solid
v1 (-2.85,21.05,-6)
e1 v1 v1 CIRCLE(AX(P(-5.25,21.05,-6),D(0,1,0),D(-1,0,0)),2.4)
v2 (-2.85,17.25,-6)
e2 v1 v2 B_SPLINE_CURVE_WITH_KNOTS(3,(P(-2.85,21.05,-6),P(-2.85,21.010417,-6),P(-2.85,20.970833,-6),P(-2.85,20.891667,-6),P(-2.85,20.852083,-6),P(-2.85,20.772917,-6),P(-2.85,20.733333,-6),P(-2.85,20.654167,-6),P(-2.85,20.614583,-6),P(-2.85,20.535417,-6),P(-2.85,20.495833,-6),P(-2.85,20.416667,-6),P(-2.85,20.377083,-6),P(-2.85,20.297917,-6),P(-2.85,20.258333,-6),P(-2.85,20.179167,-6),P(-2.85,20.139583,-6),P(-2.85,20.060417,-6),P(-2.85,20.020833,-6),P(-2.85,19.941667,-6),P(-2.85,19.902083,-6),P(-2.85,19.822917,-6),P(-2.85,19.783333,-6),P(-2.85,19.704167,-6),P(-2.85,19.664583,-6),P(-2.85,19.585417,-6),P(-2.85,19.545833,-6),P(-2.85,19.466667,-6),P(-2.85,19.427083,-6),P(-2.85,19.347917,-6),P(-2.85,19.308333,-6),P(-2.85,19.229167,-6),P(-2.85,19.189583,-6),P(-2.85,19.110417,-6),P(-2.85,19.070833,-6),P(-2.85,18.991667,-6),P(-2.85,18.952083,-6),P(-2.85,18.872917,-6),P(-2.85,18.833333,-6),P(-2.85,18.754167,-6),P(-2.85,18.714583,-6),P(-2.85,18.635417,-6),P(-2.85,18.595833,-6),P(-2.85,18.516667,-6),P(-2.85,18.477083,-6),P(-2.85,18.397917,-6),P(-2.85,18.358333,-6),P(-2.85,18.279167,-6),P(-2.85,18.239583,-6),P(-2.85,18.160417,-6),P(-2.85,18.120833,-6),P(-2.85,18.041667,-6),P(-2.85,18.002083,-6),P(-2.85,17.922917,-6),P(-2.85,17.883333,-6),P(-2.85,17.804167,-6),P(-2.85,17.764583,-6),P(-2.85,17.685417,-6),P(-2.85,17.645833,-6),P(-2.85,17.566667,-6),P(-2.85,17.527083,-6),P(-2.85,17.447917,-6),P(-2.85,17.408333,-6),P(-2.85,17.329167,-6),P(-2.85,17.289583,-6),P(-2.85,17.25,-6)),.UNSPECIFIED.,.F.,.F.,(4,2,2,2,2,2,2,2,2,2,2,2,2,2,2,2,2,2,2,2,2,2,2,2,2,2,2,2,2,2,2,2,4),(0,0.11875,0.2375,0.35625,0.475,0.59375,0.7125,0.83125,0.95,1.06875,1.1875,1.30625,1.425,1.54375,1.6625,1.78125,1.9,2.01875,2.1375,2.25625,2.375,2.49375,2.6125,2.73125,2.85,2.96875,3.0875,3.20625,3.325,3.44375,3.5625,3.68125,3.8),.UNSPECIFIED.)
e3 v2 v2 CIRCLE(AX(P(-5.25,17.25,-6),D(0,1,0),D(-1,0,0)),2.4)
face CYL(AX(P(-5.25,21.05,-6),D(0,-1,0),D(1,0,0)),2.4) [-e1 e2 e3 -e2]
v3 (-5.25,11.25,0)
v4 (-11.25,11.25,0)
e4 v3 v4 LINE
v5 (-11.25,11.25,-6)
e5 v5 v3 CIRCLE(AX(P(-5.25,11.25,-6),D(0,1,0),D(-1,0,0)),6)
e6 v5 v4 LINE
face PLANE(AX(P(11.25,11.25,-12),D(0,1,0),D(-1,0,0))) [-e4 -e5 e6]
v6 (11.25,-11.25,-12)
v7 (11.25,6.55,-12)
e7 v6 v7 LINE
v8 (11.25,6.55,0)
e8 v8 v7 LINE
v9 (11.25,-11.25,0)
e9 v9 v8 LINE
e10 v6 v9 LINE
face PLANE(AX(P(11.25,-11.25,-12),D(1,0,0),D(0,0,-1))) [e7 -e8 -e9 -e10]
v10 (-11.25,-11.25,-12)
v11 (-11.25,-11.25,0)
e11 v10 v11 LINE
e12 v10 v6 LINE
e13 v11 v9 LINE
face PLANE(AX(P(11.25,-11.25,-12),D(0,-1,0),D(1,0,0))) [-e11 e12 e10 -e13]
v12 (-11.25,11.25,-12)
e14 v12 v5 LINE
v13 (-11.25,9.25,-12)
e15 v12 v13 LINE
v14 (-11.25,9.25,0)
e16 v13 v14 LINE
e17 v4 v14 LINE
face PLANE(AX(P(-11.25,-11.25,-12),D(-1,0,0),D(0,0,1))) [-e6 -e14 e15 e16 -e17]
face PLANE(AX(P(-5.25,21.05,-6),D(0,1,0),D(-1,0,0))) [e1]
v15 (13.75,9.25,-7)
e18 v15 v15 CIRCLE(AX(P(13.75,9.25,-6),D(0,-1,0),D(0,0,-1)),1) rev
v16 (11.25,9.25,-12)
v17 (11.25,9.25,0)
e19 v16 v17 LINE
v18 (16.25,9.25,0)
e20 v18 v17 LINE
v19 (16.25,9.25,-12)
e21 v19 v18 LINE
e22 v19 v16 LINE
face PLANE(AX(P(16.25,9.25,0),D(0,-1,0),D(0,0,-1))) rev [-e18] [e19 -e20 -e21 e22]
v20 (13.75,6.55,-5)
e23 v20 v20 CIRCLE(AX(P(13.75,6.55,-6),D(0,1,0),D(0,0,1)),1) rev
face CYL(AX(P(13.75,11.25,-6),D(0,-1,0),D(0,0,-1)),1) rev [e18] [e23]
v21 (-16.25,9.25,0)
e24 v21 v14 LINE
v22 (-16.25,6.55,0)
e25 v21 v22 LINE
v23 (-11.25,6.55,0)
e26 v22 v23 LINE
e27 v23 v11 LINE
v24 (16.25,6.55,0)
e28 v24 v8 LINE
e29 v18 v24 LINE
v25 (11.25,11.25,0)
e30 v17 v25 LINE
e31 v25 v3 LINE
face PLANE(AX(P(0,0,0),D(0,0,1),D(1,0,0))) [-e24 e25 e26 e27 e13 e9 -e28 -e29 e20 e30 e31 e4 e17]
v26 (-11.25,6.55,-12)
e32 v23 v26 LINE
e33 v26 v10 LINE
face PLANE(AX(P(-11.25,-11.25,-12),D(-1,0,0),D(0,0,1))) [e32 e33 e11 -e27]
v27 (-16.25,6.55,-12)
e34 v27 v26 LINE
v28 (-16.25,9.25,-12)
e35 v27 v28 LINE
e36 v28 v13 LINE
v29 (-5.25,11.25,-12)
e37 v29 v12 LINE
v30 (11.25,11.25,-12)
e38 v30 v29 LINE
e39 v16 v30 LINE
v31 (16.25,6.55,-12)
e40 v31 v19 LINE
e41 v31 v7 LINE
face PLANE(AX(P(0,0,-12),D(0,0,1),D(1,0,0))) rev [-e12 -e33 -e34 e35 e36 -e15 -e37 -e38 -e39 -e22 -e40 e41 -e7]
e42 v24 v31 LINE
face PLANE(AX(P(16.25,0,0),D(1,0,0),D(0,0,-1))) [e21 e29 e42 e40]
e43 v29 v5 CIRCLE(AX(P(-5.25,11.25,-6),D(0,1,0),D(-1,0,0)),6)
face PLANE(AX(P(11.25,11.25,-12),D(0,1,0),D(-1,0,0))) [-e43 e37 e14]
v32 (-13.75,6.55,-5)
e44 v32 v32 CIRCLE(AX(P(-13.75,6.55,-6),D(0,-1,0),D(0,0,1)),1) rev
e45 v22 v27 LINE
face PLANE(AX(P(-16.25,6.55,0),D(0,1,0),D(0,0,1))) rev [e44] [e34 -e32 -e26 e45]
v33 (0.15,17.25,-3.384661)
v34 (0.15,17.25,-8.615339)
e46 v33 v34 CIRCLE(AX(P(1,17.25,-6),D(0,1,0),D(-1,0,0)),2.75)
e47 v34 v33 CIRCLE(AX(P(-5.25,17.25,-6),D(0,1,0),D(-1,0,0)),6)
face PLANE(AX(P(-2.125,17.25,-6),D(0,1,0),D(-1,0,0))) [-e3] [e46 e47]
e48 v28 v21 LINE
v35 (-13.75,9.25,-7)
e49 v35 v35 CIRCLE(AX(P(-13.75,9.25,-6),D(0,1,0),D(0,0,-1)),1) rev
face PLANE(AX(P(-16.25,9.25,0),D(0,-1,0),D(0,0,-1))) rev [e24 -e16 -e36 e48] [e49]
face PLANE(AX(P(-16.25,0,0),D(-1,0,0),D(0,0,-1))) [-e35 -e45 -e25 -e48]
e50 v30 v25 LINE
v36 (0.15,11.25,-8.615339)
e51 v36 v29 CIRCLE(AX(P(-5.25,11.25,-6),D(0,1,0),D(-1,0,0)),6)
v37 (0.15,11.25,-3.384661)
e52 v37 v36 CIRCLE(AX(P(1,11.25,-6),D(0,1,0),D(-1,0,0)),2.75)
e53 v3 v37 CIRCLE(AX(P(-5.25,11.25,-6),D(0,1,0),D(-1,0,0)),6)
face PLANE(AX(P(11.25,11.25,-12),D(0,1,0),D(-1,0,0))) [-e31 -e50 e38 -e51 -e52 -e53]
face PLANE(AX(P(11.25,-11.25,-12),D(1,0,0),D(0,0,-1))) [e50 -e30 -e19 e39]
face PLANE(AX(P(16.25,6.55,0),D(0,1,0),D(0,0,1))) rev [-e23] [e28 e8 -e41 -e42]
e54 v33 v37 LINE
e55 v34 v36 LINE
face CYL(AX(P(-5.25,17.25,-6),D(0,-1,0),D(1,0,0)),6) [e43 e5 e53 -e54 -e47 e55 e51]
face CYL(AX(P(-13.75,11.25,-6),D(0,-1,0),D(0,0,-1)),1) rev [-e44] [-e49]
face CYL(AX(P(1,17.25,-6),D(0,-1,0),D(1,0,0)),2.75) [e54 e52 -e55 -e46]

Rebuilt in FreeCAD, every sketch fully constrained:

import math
import FreeCAD as App
import Part
import Sketcher
Q = App.Units.Quantity


def add_polygon(sketch, points):
    """Adds a closed chain of lines whose ends are joined by coincident constraints."""
    first, n = sketch.GeometryCount, len(points)
    for a, b in zip(points, points[1:] + points[:1]):
        sketch.addGeometry(Part.LineSegment(App.Vector(*a, 0), App.Vector(*b, 0)), False)
    for i in range(n):
        sketch.addConstraint(Sketcher.Constraint("Coincident", first + i, 2, first + (i + 1) % n, 1))

doc = App.newDocument("Part")
params = doc.addObject("Spreadsheet::Sheet", "Params")
for row, (alias, value) in enumerate([
    ("sketch1_width", "22.5 mm"),
    ("pad1_length", "12 mm"),
    ("sketch2_height", "12 mm"),
    ("sketch2_width", "2.7 mm"),
    ("pad2_length", "5 mm"),
    ("sketch3_diameter", "2 mm"),
    ("sketch4_diameter", "2 mm"),
    ("pocket2_length", "29.780419 mm"),
    ("sketch5_radius", "6 mm"),
    ("sketch5_radius2", "2.75 mm"),
    ("sketch5_width", "5.4 mm"),
    ("pad3_length", "6 mm"),
    ("sketch6_diameter", "4.8 mm"),
    ("pad4_length", "3.8 mm"),
], start=1):
    params.set(f"A{row}", alias)
    params.set(f"B{row}", "=" + value)
    params.setAlias(f"B{row}", alias)

body = doc.addObject("PartDesign::Body", "Body")

# Sketch on XY plane
sketch1 = body.newObject("Sketcher::SketchObject", "Sketch")
sketch1.AttachmentSupport = (doc.getObject("XY_Plane"), [""])
sketch1.MapMode = "FlatFace"
add_polygon(sketch1, [(-11, 11), (-11, -11), (11, -11), (11, 11)])  # lines 0-3
sketch1.addConstraint([
    Sketcher.Constraint("Vertical", 0),
    Sketcher.Constraint("Horizontal", 1),
    Sketcher.Constraint("Vertical", 2),
    Sketcher.Constraint("Horizontal", 3),
    Sketcher.Constraint("Symmetric", 0, 2, 2, 2, -1, 1),
    Sketcher.Constraint("Equal", 3, 0),
    Sketcher.Constraint("DistanceX", 1, 1, 1, 2, Q("22.5 mm")),
])
sketch1.setExpression("Constraints[10]", "Params.sketch1_width")
pad1 = body.newObject("PartDesign::Pad", "Pad")
pad1.Profile = sketch1
pad1.setExpression("Length", "Params.pad1_length")
pad1.Reversed = True

# Sketch on YZ plane
sketch2 = body.newObject("Sketcher::SketchObject", "Sketch001")
sketch2.AttachmentSupport = (doc.getObject("YZ_Plane"), [""])
sketch2.MapMode = "FlatFace"
sketch2.AttachmentOffset = App.Placement(App.Vector(0, 0, 11.25), App.Rotation())
add_polygon(sketch2, [(9.2, 0), (6.5, 0), (6.5, -12), (9.2, -12)])  # lines 0-3
sketch2.addConstraint([
    Sketcher.Constraint("Horizontal", 0),
    Sketcher.Constraint("Vertical", 1),
    Sketcher.Constraint("Horizontal", 2),
    Sketcher.Constraint("Vertical", 3),
    Sketcher.Constraint("PointOnObject", 0, 2, -1),
    Sketcher.Constraint("DistanceY", 1, 2, 1, 1, Q("12 mm")),
    Sketcher.Constraint("DistanceX", 0, 2, 0, 1, Q("2.7 mm")),
    Sketcher.Constraint("DistanceX", -1, 1, 0, 2, Q("6.55 mm")),
])
sketch2.setExpression("Constraints[9]", "Params.sketch2_height")
sketch2.setExpression("Constraints[10]", "Params.sketch2_width")
pad2 = body.newObject("PartDesign::Pad", "Pad001")
pad2.Profile = sketch2
pad2.setExpression("Length", "Params.pad2_length")

# Sketch on XZ plane
sketch3 = body.newObject("Sketcher::SketchObject", "Sketch002")
sketch3.AttachmentSupport = (doc.getObject("XZ_Plane"), [""])
sketch3.MapMode = "FlatFace"
sketch3.AttachmentOffset = App.Placement(App.Vector(0, 0, -9.25), App.Rotation())
sketch3.addGeometry(Part.Circle(App.Vector(13.8, -6, 0), App.Vector(0, 0, 1), 1), False)
sketch3.addConstraint([
    Sketcher.Constraint("Diameter", 0, Q("2 mm")),
    Sketcher.Constraint("DistanceY", 0, 3, -1, 1, Q("6 mm")),
    Sketcher.Constraint("DistanceX", -1, 1, 0, 3, Q("13.75 mm")),
])
sketch3.setExpression("Constraints[0]", "Params.sketch3_diameter")
pocket1 = body.newObject("PartDesign::Pocket", "Pocket")
pocket1.Profile = sketch3
pocket1.Type = "UpToFirst"
pocket1.Reversed = True

# Sketch on XZ plane
sketch4 = body.newObject("Sketcher::SketchObject", "Sketch003")
sketch4.AttachmentSupport = (doc.getObject("XZ_Plane"), [""])
sketch4.MapMode = "FlatFace"
sketch4.AttachmentOffset = App.Placement(App.Vector(0, 0, -9.25), App.Rotation())
sketch4.addGeometry(Part.Circle(App.Vector(13.8, -6, 0), App.Vector(0, 0, 1), 1), False)
sketch4.addConstraint([
    Sketcher.Constraint("Diameter", 0, Q("2 mm")),
    Sketcher.Constraint("DistanceY", 0, 3, -1, 1, Q("6 mm")),
    Sketcher.Constraint("DistanceX", -1, 1, 0, 3, Q("13.75 mm")),
])
sketch4.setExpression("Constraints[0]", "Params.sketch4_diameter")
pocket2 = body.newObject("PartDesign::Pocket", "Pocket001")
pocket2.Profile = sketch4
pocket2.setExpression("Length", "Params.pocket2_length")
body2 = doc.addObject("PartDesign::Body", "Body001")
doc.recompute()

body2.BaseFeature = body
doc.recompute()

mirroring = doc.addObject("Part::Mirroring", "Mirroring")
mirroring.Source = body
mirroring.Base = App.Vector(0, 0, 0)
mirroring.Normal = App.Vector(1, 0, 0)
body3 = doc.addObject("PartDesign::Body", "Body002")
body3.BaseFeature = mirroring
boolean = body2.newObject("PartDesign::Boolean", "Boolean")
boolean.Type = "Fuse"
boolean.addObjects([body3])
doc.recompute()

# Sketch on XZ plane
sketch5 = body2.newObject("Sketcher::SketchObject", "Sketch004")
sketch5.AttachmentSupport = (doc.getObject("XZ_Plane001"), [""])
sketch5.MapMode = "FlatFace"
sketch5.AttachmentOffset = App.Placement(App.Vector(0, 0, -11.25), App.Rotation())
sketch5.addGeometry([
    Part.ArcOfCircle(Part.Circle(App.Vector(-5.2, -6, 0), App.Vector(0, 0, 1), 6), math.radians(26), math.radians(334)),
    Part.ArcOfCircle(Part.Circle(App.Vector(1, -6, 0), App.Vector(0, 0, 1), 2.8), math.radians(-108), math.radians(108)),
], False)
sketch5.addConstraint([
    Sketcher.Constraint("Coincident", 0, 1, 1, 2),
    Sketcher.Constraint("Coincident", 1, 1, 0, 2),
    Sketcher.Constraint("Horizontal", 0, 3, 1, 3),
    Sketcher.Constraint("Radius", 0, Q("6 mm")),
    Sketcher.Constraint("Radius", 1, Q("2.75 mm")),
    Sketcher.Constraint("DistanceY", 0, 3, -1, 1, Q("6 mm")),
    Sketcher.Constraint("DistanceX", -1, 1, 1, 3, Q("1 mm")),
    Sketcher.Constraint("DistanceX", 0, 3, 0, 1, Q("5.4 mm")),
])
sketch5.setExpression("Constraints[3]", "Params.sketch5_radius")
sketch5.setExpression("Constraints[4]", "Params.sketch5_radius2")
sketch5.setExpression("Constraints[7]", "Params.sketch5_width")
pad3 = body2.newObject("PartDesign::Pad", "Pad002")
pad3.Profile = sketch5
pad3.setExpression("Length", "Params.pad3_length")
pad3.Reversed = True

# Sketch on XZ plane
sketch6 = body2.newObject("Sketcher::SketchObject", "Sketch005")
sketch6.AttachmentSupport = (doc.getObject("XZ_Plane001"), [""])
sketch6.MapMode = "FlatFace"
sketch6.AttachmentOffset = App.Placement(App.Vector(0, 0, -17.25), App.Rotation())
sketch6.addGeometry(Part.Circle(App.Vector(-5.2, -6, 0), App.Vector(0, 0, 1), 2.4), False)
sketch6.addConstraint([
    Sketcher.Constraint("Diameter", 0, Q("4.8 mm")),
    Sketcher.Constraint("DistanceY", 0, 3, -1, 1, Q("6 mm")),
    Sketcher.Constraint("DistanceX", 0, 3, -1, 1, Q("5.25 mm")),
])
sketch6.setExpression("Constraints[0]", "Params.sketch6_diameter")
pad4 = body2.newObject("PartDesign::Pad", "Pad003")
pad4.Profile = sketch6
pad4.setExpression("Length", "Params.pad4_length")
pad4.Reversed = True
mirroring.Visibility = False

doc.recompute()
